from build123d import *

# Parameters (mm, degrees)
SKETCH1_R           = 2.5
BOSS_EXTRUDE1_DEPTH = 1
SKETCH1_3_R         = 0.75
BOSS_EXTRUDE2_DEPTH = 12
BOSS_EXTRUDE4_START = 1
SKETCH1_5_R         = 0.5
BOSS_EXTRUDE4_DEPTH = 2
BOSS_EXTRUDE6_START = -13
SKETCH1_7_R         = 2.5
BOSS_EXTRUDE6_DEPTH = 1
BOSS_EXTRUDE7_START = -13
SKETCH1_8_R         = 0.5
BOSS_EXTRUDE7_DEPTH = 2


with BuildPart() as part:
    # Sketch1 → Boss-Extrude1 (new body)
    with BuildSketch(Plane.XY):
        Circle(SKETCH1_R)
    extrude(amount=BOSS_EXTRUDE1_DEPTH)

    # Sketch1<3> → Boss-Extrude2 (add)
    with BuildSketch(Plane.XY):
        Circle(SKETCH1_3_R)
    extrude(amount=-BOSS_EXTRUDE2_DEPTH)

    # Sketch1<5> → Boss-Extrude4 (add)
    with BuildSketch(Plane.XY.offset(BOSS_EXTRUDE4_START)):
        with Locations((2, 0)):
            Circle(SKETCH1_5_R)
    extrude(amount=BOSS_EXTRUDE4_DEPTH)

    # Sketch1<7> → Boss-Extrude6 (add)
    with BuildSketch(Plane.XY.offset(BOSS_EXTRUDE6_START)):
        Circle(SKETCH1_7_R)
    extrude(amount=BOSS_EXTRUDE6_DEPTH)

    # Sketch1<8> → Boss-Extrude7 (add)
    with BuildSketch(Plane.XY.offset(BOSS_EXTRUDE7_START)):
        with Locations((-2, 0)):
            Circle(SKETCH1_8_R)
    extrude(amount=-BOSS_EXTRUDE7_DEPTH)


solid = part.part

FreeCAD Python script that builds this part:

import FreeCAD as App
import Part
import Sketcher
from FreeCAD import Vector
Q = App.Units.Quantity

doc = App.newDocument("Part")
body = doc.addObject("PartDesign::Body", "Body")

# Sketch on XY plane
sketch1 = body.newObject("Sketcher::SketchObject", "Sketch")
sketch1.AttachmentSupport = (doc.getObject("XY_Plane"), [""])
sketch1.MapMode = "FlatFace"
sketch1.addGeometry(Part.Circle(Vector(0, 0, 0), Vector(0, 0, 1), 2.5), False)
sketch1.addConstraint([
    Sketcher.Constraint("Coincident", 0, 3, -1, 1),
    Sketcher.Constraint("Diameter", 0, Q("5 mm")),
])
pad1 = body.newObject("PartDesign::Pad", "Pad")
pad1.Profile = sketch1
pad1.Length = 1

# Sketch on XY plane
sketch2 = body.newObject("Sketcher::SketchObject", "Sketch001")
sketch2.AttachmentSupport = (doc.getObject("XY_Plane"), [""])
sketch2.MapMode = "FlatFace"
sketch2.addGeometry(Part.Circle(Vector(0, 0, 0), Vector(0, 0, 1), 0.75), False)
sketch2.addConstraint([
    Sketcher.Constraint("Coincident", 0, 3, -1, 1),
    Sketcher.Constraint("Diameter", 0, Q("1.5 mm")),
])
pad2 = body.newObject("PartDesign::Pad", "Pad001")
pad2.Profile = sketch2
pad2.Length = 12
pad2.Reversed = True

# Sketch on XY plane
sketch3 = body.newObject("Sketcher::SketchObject", "Sketch002")
sketch3.AttachmentSupport = (doc.getObject("XY_Plane"), [""])
sketch3.MapMode = "FlatFace"
sketch3.AttachmentOffset = App.Placement(Vector(0, 0, 1), App.Rotation())
sketch3.addGeometry(Part.Circle(Vector(2, 0, 0), Vector(0, 0, 1), 0.5), False)
sketch3.addConstraint([
    Sketcher.Constraint("PointOnObject", 0, 3, -1),
    Sketcher.Constraint("Diameter", 0, Q("1 mm")),
    Sketcher.Constraint("DistanceX", -1, 1, 0, 3, Q("2 mm")),
])
pad3 = body.newObject("PartDesign::Pad", "Pad002")
pad3.Profile = sketch3
pad3.Length = 2

# Sketch on XY plane
sketch4 = body.newObject("Sketcher::SketchObject", "Sketch003")
sketch4.AttachmentSupport = (doc.getObject("XY_Plane"), [""])
sketch4.MapMode = "FlatFace"
sketch4.AttachmentOffset = App.Placement(Vector(0, 0, -13), App.Rotation())
sketch4.addGeometry(Part.Circle(Vector(0, 0, 0), Vector(0, 0, 1), 2.5), False)
sketch4.addConstraint([
    Sketcher.Constraint("Coincident", 0, 3, -1, 1),
    Sketcher.Constraint("Diameter", 0, Q("5 mm")),
])
pad4 = body.newObject("PartDesign::Pad", "Pad003")
pad4.Profile = sketch4
pad4.Length = 1

# Sketch on XY plane
sketch5 = body.newObject("Sketcher::SketchObject", "Sketch004")
sketch5.AttachmentSupport = (doc.getObject("XY_Plane"), [""])
sketch5.MapMode = "FlatFace"
sketch5.AttachmentOffset = App.Placement(Vector(0, 0, -13), App.Rotation())
sketch5.addGeometry(Part.Circle(Vector(-2, 0, 0), Vector(0, 0, 1), 0.5), False)
sketch5.addConstraint([
    Sketcher.Constraint("PointOnObject", 0, 3, -1),
    Sketcher.Constraint("Diameter", 0, Q("1 mm")),
    Sketcher.Constraint("DistanceX", 0, 3, -1, 1, Q("2 mm")),
])
pad5 = body.newObject("PartDesign::Pad", "Pad004")
pad5.Profile = sketch5
pad5.Length = 2
pad5.Reversed = True

doc.recompute()
